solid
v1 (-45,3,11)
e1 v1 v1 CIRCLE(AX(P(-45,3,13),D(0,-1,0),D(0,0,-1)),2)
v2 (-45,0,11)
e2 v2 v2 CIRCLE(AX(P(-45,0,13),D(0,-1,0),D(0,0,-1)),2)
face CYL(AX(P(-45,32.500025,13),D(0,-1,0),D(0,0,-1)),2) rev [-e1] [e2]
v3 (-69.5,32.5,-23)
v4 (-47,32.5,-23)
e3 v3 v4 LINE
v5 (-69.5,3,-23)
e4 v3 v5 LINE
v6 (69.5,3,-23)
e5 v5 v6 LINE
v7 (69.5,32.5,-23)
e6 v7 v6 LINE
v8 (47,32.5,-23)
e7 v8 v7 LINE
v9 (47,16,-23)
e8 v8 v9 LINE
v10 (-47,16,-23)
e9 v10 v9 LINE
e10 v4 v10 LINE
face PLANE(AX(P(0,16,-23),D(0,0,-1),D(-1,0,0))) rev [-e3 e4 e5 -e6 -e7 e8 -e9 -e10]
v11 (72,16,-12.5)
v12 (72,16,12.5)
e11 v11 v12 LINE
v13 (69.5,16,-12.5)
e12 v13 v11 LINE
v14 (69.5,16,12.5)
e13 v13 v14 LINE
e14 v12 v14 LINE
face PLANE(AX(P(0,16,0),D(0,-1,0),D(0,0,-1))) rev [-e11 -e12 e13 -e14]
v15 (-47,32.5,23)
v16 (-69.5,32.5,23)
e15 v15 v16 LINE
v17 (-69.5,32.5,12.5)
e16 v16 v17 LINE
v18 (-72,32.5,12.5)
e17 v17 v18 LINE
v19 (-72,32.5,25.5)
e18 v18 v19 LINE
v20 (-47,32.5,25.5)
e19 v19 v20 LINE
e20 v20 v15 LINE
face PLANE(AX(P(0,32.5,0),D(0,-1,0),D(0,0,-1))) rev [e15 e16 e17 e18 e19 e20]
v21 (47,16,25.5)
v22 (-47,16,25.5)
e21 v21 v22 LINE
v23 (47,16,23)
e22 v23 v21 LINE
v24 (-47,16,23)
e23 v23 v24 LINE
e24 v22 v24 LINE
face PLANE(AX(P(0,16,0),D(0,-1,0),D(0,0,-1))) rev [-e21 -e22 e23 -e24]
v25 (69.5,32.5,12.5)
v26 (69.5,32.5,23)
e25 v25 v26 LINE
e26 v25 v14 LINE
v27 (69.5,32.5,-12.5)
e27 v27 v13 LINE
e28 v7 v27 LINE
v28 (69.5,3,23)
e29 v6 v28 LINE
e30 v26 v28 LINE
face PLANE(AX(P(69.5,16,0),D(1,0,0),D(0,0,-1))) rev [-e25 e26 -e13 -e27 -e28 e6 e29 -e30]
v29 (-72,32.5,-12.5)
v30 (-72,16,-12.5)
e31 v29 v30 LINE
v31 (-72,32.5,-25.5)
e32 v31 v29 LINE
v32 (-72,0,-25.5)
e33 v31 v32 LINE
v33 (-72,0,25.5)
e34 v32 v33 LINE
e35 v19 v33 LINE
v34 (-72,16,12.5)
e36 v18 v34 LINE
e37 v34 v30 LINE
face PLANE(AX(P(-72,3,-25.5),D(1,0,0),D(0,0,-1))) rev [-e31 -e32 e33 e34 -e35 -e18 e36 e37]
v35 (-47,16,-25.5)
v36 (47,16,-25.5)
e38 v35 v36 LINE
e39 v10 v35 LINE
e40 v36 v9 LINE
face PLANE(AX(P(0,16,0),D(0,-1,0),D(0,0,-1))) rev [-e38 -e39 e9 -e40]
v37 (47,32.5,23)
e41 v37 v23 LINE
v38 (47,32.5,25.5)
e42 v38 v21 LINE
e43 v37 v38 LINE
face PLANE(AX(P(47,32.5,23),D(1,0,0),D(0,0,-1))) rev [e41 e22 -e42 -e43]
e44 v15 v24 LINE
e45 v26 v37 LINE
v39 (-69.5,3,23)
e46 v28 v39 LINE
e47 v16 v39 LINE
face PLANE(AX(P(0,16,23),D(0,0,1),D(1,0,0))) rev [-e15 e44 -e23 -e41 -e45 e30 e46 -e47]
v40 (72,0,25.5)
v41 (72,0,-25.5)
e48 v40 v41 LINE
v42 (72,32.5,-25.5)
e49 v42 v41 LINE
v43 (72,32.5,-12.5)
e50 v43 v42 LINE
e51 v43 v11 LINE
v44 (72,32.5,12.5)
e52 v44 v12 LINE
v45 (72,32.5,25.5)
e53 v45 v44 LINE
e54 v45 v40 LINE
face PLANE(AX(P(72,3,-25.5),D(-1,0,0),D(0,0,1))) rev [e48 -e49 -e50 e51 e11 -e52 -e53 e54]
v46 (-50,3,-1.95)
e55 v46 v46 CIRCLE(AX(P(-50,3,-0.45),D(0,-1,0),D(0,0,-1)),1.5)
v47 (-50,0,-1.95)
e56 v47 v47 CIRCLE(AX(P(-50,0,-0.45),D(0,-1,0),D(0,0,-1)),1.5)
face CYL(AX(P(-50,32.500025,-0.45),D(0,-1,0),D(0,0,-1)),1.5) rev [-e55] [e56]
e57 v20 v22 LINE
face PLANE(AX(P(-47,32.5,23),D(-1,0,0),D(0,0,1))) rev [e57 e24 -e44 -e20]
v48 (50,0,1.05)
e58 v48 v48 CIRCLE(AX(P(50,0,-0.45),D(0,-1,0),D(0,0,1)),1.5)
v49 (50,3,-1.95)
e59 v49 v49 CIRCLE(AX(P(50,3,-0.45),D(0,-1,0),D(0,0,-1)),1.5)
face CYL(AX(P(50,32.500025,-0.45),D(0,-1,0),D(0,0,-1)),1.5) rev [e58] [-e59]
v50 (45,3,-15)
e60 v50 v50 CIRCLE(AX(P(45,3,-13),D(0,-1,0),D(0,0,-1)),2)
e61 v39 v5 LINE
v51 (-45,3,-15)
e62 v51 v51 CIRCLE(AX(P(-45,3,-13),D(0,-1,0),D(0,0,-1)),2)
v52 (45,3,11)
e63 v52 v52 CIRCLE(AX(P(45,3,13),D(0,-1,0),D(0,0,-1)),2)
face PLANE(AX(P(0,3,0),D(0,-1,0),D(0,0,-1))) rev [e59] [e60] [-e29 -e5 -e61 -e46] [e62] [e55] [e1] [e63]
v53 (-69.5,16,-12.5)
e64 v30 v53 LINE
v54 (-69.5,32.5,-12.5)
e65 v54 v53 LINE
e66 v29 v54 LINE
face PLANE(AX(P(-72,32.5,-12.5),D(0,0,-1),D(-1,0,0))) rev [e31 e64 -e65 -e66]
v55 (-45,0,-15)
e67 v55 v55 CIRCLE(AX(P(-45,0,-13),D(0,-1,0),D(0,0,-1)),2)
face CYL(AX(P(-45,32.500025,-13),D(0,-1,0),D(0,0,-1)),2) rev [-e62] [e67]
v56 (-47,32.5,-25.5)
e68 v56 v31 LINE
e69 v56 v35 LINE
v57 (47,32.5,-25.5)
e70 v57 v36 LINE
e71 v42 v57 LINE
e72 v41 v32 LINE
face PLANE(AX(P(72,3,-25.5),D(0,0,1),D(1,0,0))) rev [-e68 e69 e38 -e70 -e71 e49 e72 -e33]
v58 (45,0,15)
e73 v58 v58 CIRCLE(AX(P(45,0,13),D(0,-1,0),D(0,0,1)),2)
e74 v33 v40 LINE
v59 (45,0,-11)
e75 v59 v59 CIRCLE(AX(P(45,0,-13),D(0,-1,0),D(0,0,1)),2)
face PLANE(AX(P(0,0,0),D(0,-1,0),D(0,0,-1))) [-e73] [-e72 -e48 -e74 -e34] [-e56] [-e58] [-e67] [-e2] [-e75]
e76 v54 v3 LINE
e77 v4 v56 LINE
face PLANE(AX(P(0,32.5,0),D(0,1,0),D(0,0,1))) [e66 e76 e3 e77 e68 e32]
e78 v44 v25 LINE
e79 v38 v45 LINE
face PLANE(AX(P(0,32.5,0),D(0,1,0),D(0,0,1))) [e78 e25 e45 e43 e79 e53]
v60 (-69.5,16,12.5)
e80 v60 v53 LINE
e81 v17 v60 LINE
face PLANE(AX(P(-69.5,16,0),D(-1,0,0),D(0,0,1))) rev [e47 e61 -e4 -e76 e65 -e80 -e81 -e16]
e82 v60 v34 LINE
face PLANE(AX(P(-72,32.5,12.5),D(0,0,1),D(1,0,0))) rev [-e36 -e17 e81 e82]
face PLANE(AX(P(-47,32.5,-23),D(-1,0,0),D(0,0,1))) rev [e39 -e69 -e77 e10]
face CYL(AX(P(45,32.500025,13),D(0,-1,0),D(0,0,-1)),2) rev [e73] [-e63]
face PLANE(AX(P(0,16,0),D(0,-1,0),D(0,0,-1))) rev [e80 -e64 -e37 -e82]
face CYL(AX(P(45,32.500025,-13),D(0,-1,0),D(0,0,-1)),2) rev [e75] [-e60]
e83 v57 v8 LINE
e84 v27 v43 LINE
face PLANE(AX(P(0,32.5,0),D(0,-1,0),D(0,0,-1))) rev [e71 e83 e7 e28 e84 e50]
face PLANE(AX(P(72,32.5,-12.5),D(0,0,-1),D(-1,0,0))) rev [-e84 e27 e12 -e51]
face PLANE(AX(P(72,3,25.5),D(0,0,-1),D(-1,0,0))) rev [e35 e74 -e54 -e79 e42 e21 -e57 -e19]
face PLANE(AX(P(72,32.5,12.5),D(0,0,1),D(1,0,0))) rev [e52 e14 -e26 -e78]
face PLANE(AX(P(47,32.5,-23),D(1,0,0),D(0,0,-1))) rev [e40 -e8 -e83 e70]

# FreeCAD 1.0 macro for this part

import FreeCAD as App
import Part
import Sketcher
from FreeCAD import Vector

doc = App.newDocument("Part")
body = doc.addObject("PartDesign::Body", "Body")

# Sketch on XZ plane
sketch1 = body.newObject("Sketcher::SketchObject", "Sketch")
sketch1.AttachmentSupport = (doc.getObject("XZ_Plane"), [""])
sketch1.MapMode = "FlatFace"
sketch1.addGeometry(Part.LineSegment(Vector(-72, -26, 0), Vector(-72, 26, 0)), False)
sketch1.addGeometry(Part.LineSegment(Vector(-72, 26, 0), Vector(72, 26, 0)), False)
sketch1.addGeometry(Part.LineSegment(Vector(72, 26, 0), Vector(72, -26, 0)), False)
sketch1.addGeometry(Part.LineSegment(Vector(72, -26, 0), Vector(-72, -26, 0)), False)
sketch1.addConstraint(Sketcher.Constraint("Coincident", 0, 2, 1, 1))
sketch1.addConstraint(Sketcher.Constraint("Coincident", 1, 2, 2, 1))
sketch1.addConstraint(Sketcher.Constraint("Coincident", 2, 2, 3, 1))
sketch1.addConstraint(Sketcher.Constraint("Coincident", 3, 2, 0, 1))
sketch1.addConstraint(Sketcher.Constraint("Vertical", 0))
sketch1.addConstraint(Sketcher.Constraint("Horizontal", 1))
sketch1.addConstraint(Sketcher.Constraint("Vertical", 2))
sketch1.addConstraint(Sketcher.Constraint("Horizontal", 3))
sketch1.addConstraint(Sketcher.Constraint("Symmetric", 0, 2, 2, 2, -1, 1))
sketch1.addConstraint(Sketcher.Constraint("DistanceX", 1, 1, 1, 2, 144.0))
sketch1.addConstraint(Sketcher.Constraint("DistanceY", 0, 1, 0, 2, 51.0))
pad1 = body.newObject("PartDesign::Pad", "Pad")
pad1.Profile = sketch1
pad1.Length = 3
pad1.Reversed = True

# Sketch on XZ plane
sketch2 = body.newObject("Sketcher::SketchObject", "Sketch001")
sketch2.AttachmentSupport = (doc.getObject("XZ_Plane"), [""])
sketch2.MapMode = "FlatFace"
sketch2.addGeometry(Part.LineSegment(Vector(-72, -26, 0), Vector(-72, 26, 0)), False)
sketch2.addGeometry(Part.LineSegment(Vector(-72, 26, 0), Vector(72, 26, 0)), False)
sketch2.addGeometry(Part.LineSegment(Vector(72, 26, 0), Vector(72, -26, 0)), False)
sketch2.addGeometry(Part.LineSegment(Vector(72, -26, 0), Vector(-72, -26, 0)), False)
sketch2.addGeometry(Part.LineSegment(Vector(70, 23, 0), Vector(-70, 23, 0)), False)
sketch2.addGeometry(Part.LineSegment(Vector(-70, 23, 0), Vector(-70, -23, 0)), False)
sketch2.addGeometry(Part.LineSegment(Vector(-70, -23, 0), Vector(70, -23, 0)), False)
sketch2.addGeometry(Part.LineSegment(Vector(70, -23, 0), Vector(70, 23, 0)), False)
sketch2.addConstraint(Sketcher.Constraint("Coincident", 0, 2, 1, 1))
sketch2.addConstraint(Sketcher.Constraint("Coincident", 1, 2, 2, 1))
sketch2.addConstraint(Sketcher.Constraint("Coincident", 2, 2, 3, 1))
sketch2.addConstraint(Sketcher.Constraint("Coincident", 3, 2, 0, 1))
sketch2.addConstraint(Sketcher.Constraint("Coincident", 4, 2, 5, 1))
sketch2.addConstraint(Sketcher.Constraint("Coincident", 5, 2, 6, 1))
sketch2.addConstraint(Sketcher.Constraint("Coincident", 6, 2, 7, 1))
sketch2.addConstraint(Sketcher.Constraint("Coincident", 7, 2, 4, 1))
sketch2.addConstraint(Sketcher.Constraint("Vertical", 0))
sketch2.addConstraint(Sketcher.Constraint("Horizontal", 1))
sketch2.addConstraint(Sketcher.Constraint("Vertical", 2))
sketch2.addConstraint(Sketcher.Constraint("Horizontal", 3))
sketch2.addConstraint(Sketcher.Constraint("Horizontal", 4))
sketch2.addConstraint(Sketcher.Constraint("Vertical", 5))
sketch2.addConstraint(Sketcher.Constraint("Horizontal", 6))
sketch2.addConstraint(Sketcher.Constraint("Vertical", 7))
sketch2.addConstraint(Sketcher.Constraint("Symmetric", 0, 2, 2, 2, -1, 1))
sketch2.addConstraint(Sketcher.Constraint("Symmetric", 4, 2, 6, 2, -1, 1))
sketch2.addConstraint(Sketcher.Constraint("DistanceX", 1, 1, 1, 2, 144.0))
sketch2.addConstraint(Sketcher.Constraint("DistanceX", 4, 2, 4, 1, 139.0))
sketch2.addConstraint(Sketcher.Constraint("DistanceY", 0, 1, 0, 2, 51.0))
sketch2.addConstraint(Sketcher.Constraint("DistanceY", 5, 2, 5, 1, 46.0))
pad2 = body.newObject("PartDesign::Pad", "Pad001")
pad2.Profile = sketch2
pad2.Length = 16
pad2.Reversed = True

# Sketch on XZ plane
sketch3 = body.newObject("Sketcher::SketchObject", "Sketch002")
sketch3.AttachmentSupport = (doc.getObject("XZ_Plane"), [""])
sketch3.MapMode = "FlatFace"
sketch3.AttachmentOffset = App.Placement(Vector(0, 0, -16), App.Rotation())
sketch3.addGeometry(Part.LineSegment(Vector(-72, -25.5, 0), Vector(-72, -12.5, 0)), False)
sketch3.addGeometry(Part.LineSegment(Vector(-72, -12.5, 0), Vector(-69.5, -12.5, 0)), False)
sketch3.addGeometry(Part.LineSegment(Vector(-69.5, -12.5, 0), Vector(-69.5, -23, 0)), False)
sketch3.addGeometry(Part.LineSegment(Vector(-69.5, -23, 0), Vector(-47, -23, 0)), False)
sketch3.addGeometry(Part.LineSegment(Vector(-47, -23, 0), Vector(-47, -25.5, 0)), False)
sketch3.addGeometry(Part.LineSegment(Vector(-47, -25.5, 0), Vector(-72, -25.5, 0)), False)
sketch3.addGeometry(Part.LineSegment(Vector(72, -25.5, 0), Vector(47, -25.5, 0)), False)
sketch3.addGeometry(Part.LineSegment(Vector(47, -25.5, 0), Vector(47, -23, 0)), False)
sketch3.addGeometry(Part.LineSegment(Vector(47, -23, 0), Vector(69.5, -23, 0)), False)
sketch3.addGeometry(Part.LineSegment(Vector(69.5, -23, 0), Vector(69.5, -12.5, 0)), False)
sketch3.addGeometry(Part.LineSegment(Vector(69.5, -12.5, 0), Vector(72, -12.5, 0)), False)
sketch3.addGeometry(Part.LineSegment(Vector(72, -12.5, 0), Vector(72, -25.5, 0)), False)
sketch3.addGeometry(Part.LineSegment(Vector(72, 25.5, 0), Vector(72, 12.5, 0)), False)
sketch3.addGeometry(Part.LineSegment(Vector(72, 12.5, 0), Vector(69.5, 12.5, 0)), False)
sketch3.addGeometry(Part.LineSegment(Vector(69.5, 12.5, 0), Vector(69.5, 23, 0)), False)
sketch3.addGeometry(Part.LineSegment(Vector(69.5, 23, 0), Vector(47, 23, 0)), False)
sketch3.addGeometry(Part.LineSegment(Vector(47, 23, 0), Vector(47, 25.5, 0)), False)
sketch3.addGeometry(Part.LineSegment(Vector(47, 25.5, 0), Vector(72, 25.5, 0)), False)
sketch3.addGeometry(Part.LineSegment(Vector(-72, 25.5, 0), Vector(-47, 25.5, 0)), False)
sketch3.addGeometry(Part.LineSegment(Vector(-47, 25.5, 0), Vector(-47, 23, 0)), False)
sketch3.addGeometry(Part.LineSegment(Vector(-47, 23, 0), Vector(-69.5, 23, 0)), False)
sketch3.addGeometry(Part.LineSegment(Vector(-69.5, 23, 0), Vector(-69.5, 12.5, 0)), False)
sketch3.addGeometry(Part.LineSegment(Vector(-69.5, 12.5, 0), Vector(-72, 12.5, 0)), False)
sketch3.addGeometry(Part.LineSegment(Vector(-72, 12.5, 0), Vector(-72, 25.5, 0)), False)
sketch3.addConstraint(Sketcher.Constraint("Coincident", 0, 2, 1, 1))
sketch3.addConstraint(Sketcher.Constraint("Coincident", 1, 2, 2, 1))
sketch3.addConstraint(Sketcher.Constraint("Coincident", 2, 2, 3, 1))
sketch3.addConstraint(Sketcher.Constraint("Coincident", 3, 2, 4, 1))
sketch3.addConstraint(Sketcher.Constraint("Coincident", 4, 2, 5, 1))
sketch3.addConstraint(Sketcher.Constraint("Coincident", 5, 2, 0, 1))
sketch3.addConstraint(Sketcher.Constraint("Coincident", 6, 2, 7, 1))
sketch3.addConstraint(Sketcher.Constraint("Coincident", 7, 2, 8, 1))
sketch3.addConstraint(Sketcher.Constraint("Coincident", 8, 2, 9, 1))
sketch3.addConstraint(Sketcher.Constraint("Coincident", 9, 2, 10, 1))
sketch3.addConstraint(Sketcher.Constraint("Coincident", 10, 2, 11, 1))
sketch3.addConstraint(Sketcher.Constraint("Coincident", 11, 2, 6, 1))
sketch3.addConstraint(Sketcher.Constraint("Coincident", 12, 2, 13, 1))
sketch3.addConstraint(Sketcher.Constraint("Coincident", 13, 2, 14, 1))
sketch3.addConstraint(Sketcher.Constraint("Coincident", 14, 2, 15, 1))
sketch3.addConstraint(Sketcher.Constraint("Coincident", 15, 2, 16, 1))
sketch3.addConstraint(Sketcher.Constraint("Coincident", 16, 2, 17, 1))
sketch3.addConstraint(Sketcher.Constraint("Coincident", 17, 2, 12, 1))
sketch3.addConstraint(Sketcher.Constraint("Coincident", 18, 2, 19, 1))
sketch3.addConstraint(Sketcher.Constraint("Coincident", 19, 2, 20, 1))
sketch3.addConstraint(Sketcher.Constraint("Coincident", 20, 2, 21, 1))
sketch3.addConstraint(Sketcher.Constraint("Coincident", 21, 2, 22, 1))
sketch3.addConstraint(Sketcher.Constraint("Coincident", 22, 2, 23, 1))
sketch3.addConstraint(Sketcher.Constraint("Coincident", 23, 2, 18, 1))
sketch3.addConstraint(Sketcher.Constraint("Vertical", 0))
sketch3.addConstraint(Sketcher.Constraint("Horizontal", 1))
sketch3.addConstraint(Sketcher.Constraint("Vertical", 2))
sketch3.addConstraint(Sketcher.Constraint("Horizontal", 3))
sketch3.addConstraint(Sketcher.Constraint("Vertical", 4))
sketch3.addConstraint(Sketcher.Constraint("Horizontal", 5))
sketch3.addConstraint(Sketcher.Constraint("Horizontal", 6))
sketch3.addConstraint(Sketcher.Constraint("Vertical", 7))
sketch3.addConstraint(Sketcher.Constraint("Horizontal", 8))
sketch3.addConstraint(Sketcher.Constraint("Vertical", 9))
sketch3.addConstraint(Sketcher.Constraint("Horizontal", 10))
sketch3.addConstraint(Sketcher.Constraint("Vertical", 11))
sketch3.addConstraint(Sketcher.Constraint("Vertical", 12))
sketch3.addConstraint(Sketcher.Constraint("Horizontal", 13))
sketch3.addConstraint(Sketcher.Constraint("Vertical", 14))
sketch3.addConstraint(Sketcher.Constraint("Horizontal", 15))
sketch3.addConstraint(Sketcher.Constraint("Vertical", 16))
sketch3.addConstraint(Sketcher.Constraint("Horizontal", 17))
sketch3.addConstraint(Sketcher.Constraint("Horizontal", 18))
sketch3.addConstraint(Sketcher.Constraint("Vertical", 19))
sketch3.addConstraint(Sketcher.Constraint("Horizontal", 20))
sketch3.addConstraint(Sketcher.Constraint("Vertical", 21))
sketch3.addConstraint(Sketcher.Constraint("Horizontal", 22))
sketch3.addConstraint(Sketcher.Constraint("Vertical", 23))
sketch3.addConstraint(Sketcher.Constraint("Symmetric", 0, 2, 12, 2, -1, 1))
sketch3.addConstraint(Sketcher.Constraint("Symmetric", 2, 2, 14, 2, -1, 1))
sketch3.addConstraint(Sketcher.Constraint("Symmetric", 4, 2, 16, 2, -1, 1))
sketch3.addConstraint(Sketcher.Constraint("Symmetric", 6, 2, 18, 2, -1, 1))
sketch3.addConstraint(Sketcher.Constraint("Symmetric", 8, 2, 20, 2, -1, 1))
sketch3.addConstraint(Sketcher.Constraint("Symmetric", 10, 2, 22, 2, -1, 1))
sketch3.addConstraint(Sketcher.Constraint("Symmetric", 4, 2, 6, 2, -2))
sketch3.addConstraint(Sketcher.Constraint("Symmetric", 2, 2, 8, 2, -2))
sketch3.addConstraint(Sketcher.Constraint("Symmetric", 0, 2, 10, 2, -2))
sketch3.addConstraint(Sketcher.Constraint("Equal", 22, 4))
sketch3.addConstraint(Sketcher.Constraint("DistanceX", 5, 2, 5, 1, 25.0))
sketch3.addConstraint(Sketcher.Constraint("DistanceY", 0, 1, 0, 2, 13.0))
sketch3.addConstraint(Sketcher.Constraint("DistanceX", 1, 1, 1, 2, 2.5))
sketch3.addConstraint(Sketcher.Constraint("DistanceX", 0, 2, -1, 1, 72.0))
sketch3.addConstraint(Sketcher.Constraint("DistanceY", 2, 2, -1, 1, 23.0))
pad3 = body.newObject("PartDesign::Pad", "Pad002")
pad3.Profile = sketch3
pad3.Length = 16.5
pad3.Reversed = True

# Sketch on XZ plane
sketch4 = body.newObject("Sketcher::SketchObject", "Sketch003")
sketch4.AttachmentSupport = (doc.getObject("XZ_Plane"), [""])
sketch4.MapMode = "FlatFace"
sketch4.addGeometry(Part.Circle(Vector(-45, -13, 0), Vector(0, 0, 1), 2), False)
sketch4.addGeometry(Part.Circle(Vector(-45, 13, 0), Vector(0, 0, 1), 2), False)
sketch4.addGeometry(Part.Circle(Vector(45, 13, 0), Vector(0, 0, 1), 2), False)
sketch4.addGeometry(Part.Circle(Vector(45, -13, 0), Vector(0, 0, 1), 2), False)
sketch4.addGeometry(Part.Circle(Vector(-50, -0.5, 0), Vector(0, 0, 1), 1.5), False)
sketch4.addGeometry(Part.Circle(Vector(50, -0.5, 0), Vector(0, 0, 1), 1.5), False)
sketch4.addConstraint(Sketcher.Constraint("Equal", 0, 1))
sketch4.addConstraint(Sketcher.Constraint("Equal", 1, 2))
sketch4.addConstraint(Sketcher.Constraint("Equal", 2, 3))
sketch4.addConstraint(Sketcher.Constraint("Equal", 4, 5))
sketch4.addConstraint(Sketcher.Constraint("Symmetric", 0, 3, 2, 3, -1, 1))
sketch4.addConstraint(Sketcher.Constraint("Symmetric", 1, 3, 3, 3, -1, 1))
sketch4.addConstraint(Sketcher.Constraint("Symmetric", 1, 3, 2, 3, -2))
sketch4.addConstraint(Sketcher.Constraint("Symmetric", 4, 3, 5, 3, -2))
sketch4.addConstraint(Sketcher.Constraint("Diameter", 0, 4.0))
sketch4.addConstraint(Sketcher.Constraint("Diameter", 4, 3.0))
sketch4.addConstraint(Sketcher.Constraint("DistanceX", 0, 3, -1, 1, 45.0))
sketch4.addConstraint(Sketcher.Constraint("DistanceY", 0, 3, -1, 1, 13.0))
sketch4.addConstraint(Sketcher.Constraint("DistanceX", 4, 3, -1, 1, 50.0))
sketch4.addConstraint(Sketcher.Constraint("DistanceY", 4, 3, -1, 1, 0.45))
pocket1 = body.newObject("PartDesign::Pocket", "Pocket")
pocket1.Profile = sketch4
pocket1.Type = "ThroughAll"

doc.recompute()
